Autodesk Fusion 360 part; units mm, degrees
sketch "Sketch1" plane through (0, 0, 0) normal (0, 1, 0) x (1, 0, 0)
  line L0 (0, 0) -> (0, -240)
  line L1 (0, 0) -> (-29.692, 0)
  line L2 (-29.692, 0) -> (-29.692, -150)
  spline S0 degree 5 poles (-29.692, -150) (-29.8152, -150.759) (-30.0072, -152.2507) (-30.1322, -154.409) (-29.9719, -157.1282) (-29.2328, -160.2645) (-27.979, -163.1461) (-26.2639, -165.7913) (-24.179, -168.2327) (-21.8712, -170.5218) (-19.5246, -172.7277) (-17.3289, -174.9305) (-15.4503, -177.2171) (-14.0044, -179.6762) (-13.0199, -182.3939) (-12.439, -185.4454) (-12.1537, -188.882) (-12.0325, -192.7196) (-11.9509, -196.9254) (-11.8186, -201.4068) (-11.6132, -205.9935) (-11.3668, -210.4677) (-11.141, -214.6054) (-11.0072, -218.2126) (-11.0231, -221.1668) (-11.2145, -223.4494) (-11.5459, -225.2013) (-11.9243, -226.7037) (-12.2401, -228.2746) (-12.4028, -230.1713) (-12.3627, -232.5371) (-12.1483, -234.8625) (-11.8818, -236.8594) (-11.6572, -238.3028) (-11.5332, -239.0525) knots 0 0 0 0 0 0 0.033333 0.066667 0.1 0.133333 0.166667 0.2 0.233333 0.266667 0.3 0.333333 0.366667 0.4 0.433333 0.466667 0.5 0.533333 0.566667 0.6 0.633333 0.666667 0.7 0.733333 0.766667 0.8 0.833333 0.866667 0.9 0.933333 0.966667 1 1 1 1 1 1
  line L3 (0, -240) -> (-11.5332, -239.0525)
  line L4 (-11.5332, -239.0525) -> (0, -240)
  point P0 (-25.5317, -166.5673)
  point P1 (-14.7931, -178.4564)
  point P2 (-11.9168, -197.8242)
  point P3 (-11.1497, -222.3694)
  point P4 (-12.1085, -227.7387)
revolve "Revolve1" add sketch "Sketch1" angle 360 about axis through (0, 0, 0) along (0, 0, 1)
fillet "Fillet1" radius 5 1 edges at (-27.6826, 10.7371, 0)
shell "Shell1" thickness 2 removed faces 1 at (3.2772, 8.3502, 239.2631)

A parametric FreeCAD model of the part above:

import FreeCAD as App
import Part
import Sketcher
Q = App.Units.Quantity


def edges_at(feature, points):
    """Names of the edges that pass closest to the given points."""
    edges = feature.Shape.Edges
    near = lambda p: min(range(len(edges)), key=lambda i: edges[i].distToShape(Part.Vertex(*p))[0])
    return sorted({f"Edge{near(p) + 1}" for p in points})


def faces_at(feature, points):
    """Names of the faces that lie closest to the given points."""
    faces = feature.Shape.Faces
    near = lambda p: min(range(len(faces)), key=lambda i: faces[i].distToShape(Part.Vertex(*p))[0])
    return sorted({f"Face{near(p) + 1}" for p in points})

doc = App.newDocument("Part")
body = doc.addObject("PartDesign::Body", "Body")

sketch1 = doc.addObject("Sketcher::SketchObject", "Sketch")
body.addObject(sketch1)
sketch1.AttachmentSupport = (doc.XZ_Plane, [""])
sketch1.MapMode = "FlatFace"
sketch1.addGeometry(Part.LineSegment(App.Vector(0, 240, 0), App.Vector(0, 0, 0)), False)
sketch1.addGeometry(Part.LineSegment(App.Vector(0, 0, 0), App.Vector(-29.692, 0, 0)), False)
sketch1.addGeometry(Part.LineSegment(App.Vector(-29.692, 0, 0), App.Vector(-29.692, 150, 0)), False)
sketch1.addGeometry(Part.BSplineCurve([App.Vector(-29.692, 150, 0), App.Vector(-29.8152, 150.759, 0), App.Vector(-30.0072, 152.2507, 0), App.Vector(-30.1322, 154.409, 0), App.Vector(-29.9719, 157.1282, 0), App.Vector(-29.2328, 160.2645, 0), App.Vector(-27.979, 163.1461, 0), App.Vector(-26.2639, 165.7913, 0), App.Vector(-24.179, 168.2327, 0), App.Vector(-21.8712, 170.5218, 0), App.Vector(-19.5246, 172.7277, 0), App.Vector(-17.3289, 174.9305, 0), App.Vector(-15.4503, 177.2171, 0), App.Vector(-14.0044, 179.6762, 0), App.Vector(-13.0199, 182.3939, 0), App.Vector(-12.439, 185.4454, 0), App.Vector(-12.1537, 188.882, 0), App.Vector(-12.0325, 192.7196, 0), App.Vector(-11.9509, 196.9254, 0), App.Vector(-11.8186, 201.4068, 0), App.Vector(-11.6132, 205.9935, 0), App.Vector(-11.3668, 210.4677, 0), App.Vector(-11.141, 214.6054, 0), App.Vector(-11.0072, 218.2126, 0), App.Vector(-11.0231, 221.1668, 0), App.Vector(-11.2145, 223.4494, 0), App.Vector(-11.5459, 225.2013, 0), App.Vector(-11.9243, 226.7037, 0), App.Vector(-12.2401, 228.2746, 0), App.Vector(-12.4028, 230.1713, 0), App.Vector(-12.3627, 232.5371, 0), App.Vector(-12.1483, 234.8625, 0), App.Vector(-11.8818, 236.8594, 0), App.Vector(-11.6572, 238.3028, 0), App.Vector(-11.5332, 239.0525, 0)], [6, 1, 1, 1, 1, 1, 1, 1, 1, 1, 1, 1, 1, 1, 1, 1, 1, 1, 1, 1, 1, 1, 1, 1, 1, 1, 1, 1, 1, 1, 6], [0, 0.033333, 0.066667, 0.1, 0.133333, 0.166667, 0.2, 0.233333, 0.266667, 0.3, 0.333333, 0.366667, 0.4, 0.433333, 0.466667, 0.5, 0.533333, 0.566667, 0.6, 0.633333, 0.666667, 0.7, 0.733333, 0.766667, 0.8, 0.833333, 0.866667, 0.9, 0.933333, 0.966667, 1], False, 5, [1, 1, 1, 1, 1, 1, 1, 1, 1, 1, 1, 1, 1, 1, 1, 1, 1, 1, 1, 1, 1, 1, 1, 1, 1, 1, 1, 1, 1, 1, 1, 1, 1, 1, 1], False), False)
sketch1.addGeometry(Part.LineSegment(App.Vector(-11.5332, 239.0525, 0), App.Vector(0, 240, 0)), False)
sketch1.addConstraint(Sketcher.Constraint("Block", 3))
sketch1.addConstraint(Sketcher.Constraint("Coincident", 0, 2, 1, 1))
sketch1.addConstraint(Sketcher.Constraint("Coincident", 1, 2, 2, 1))
sketch1.addConstraint(Sketcher.Constraint("Coincident", 2, 2, 3, 1))
sketch1.addConstraint(Sketcher.Constraint("Coincident", 3, 2, 4, 1))
sketch1.addConstraint(Sketcher.Constraint("Coincident", 4, 2, 0, 1))
sketch1.addConstraint(Sketcher.Constraint("Vertical", 0))
sketch1.addConstraint(Sketcher.Constraint("Horizontal", 1))
sketch1.addConstraint(Sketcher.Constraint("Vertical", 2))
sketch1.addConstraint(Sketcher.Constraint("Coincident", 0, 2, -1, 1))
sketch1.addConstraint(Sketcher.Constraint("DistanceY", 0, 2, 0, 1, Q("240 mm")))
revolution = doc.addObject("PartDesign::Revolution", "Revolution")
body.addObject(revolution)
revolution.Profile = sketch1
revolution.ReferenceAxis = (sketch1, ["V_Axis"])
revolution.Angle = 360
doc.recompute()

fillet = doc.addObject("PartDesign::Fillet", "Fillet")
body.addObject(fillet)
fillet.Base = (revolution, edges_at(revolution, [(-27.683, 10.737, 0)]))
fillet.Radius = 5
doc.recompute()

thickness = doc.addObject("PartDesign::Thickness", "Thickness")
body.addObject(thickness)
thickness.Base = (fillet, faces_at(fillet, [(3.277, 8.35, 239.263)]))
thickness.Value = 2
thickness.Reversed = True
thickness.Join = "Intersection"

doc.recompute()
